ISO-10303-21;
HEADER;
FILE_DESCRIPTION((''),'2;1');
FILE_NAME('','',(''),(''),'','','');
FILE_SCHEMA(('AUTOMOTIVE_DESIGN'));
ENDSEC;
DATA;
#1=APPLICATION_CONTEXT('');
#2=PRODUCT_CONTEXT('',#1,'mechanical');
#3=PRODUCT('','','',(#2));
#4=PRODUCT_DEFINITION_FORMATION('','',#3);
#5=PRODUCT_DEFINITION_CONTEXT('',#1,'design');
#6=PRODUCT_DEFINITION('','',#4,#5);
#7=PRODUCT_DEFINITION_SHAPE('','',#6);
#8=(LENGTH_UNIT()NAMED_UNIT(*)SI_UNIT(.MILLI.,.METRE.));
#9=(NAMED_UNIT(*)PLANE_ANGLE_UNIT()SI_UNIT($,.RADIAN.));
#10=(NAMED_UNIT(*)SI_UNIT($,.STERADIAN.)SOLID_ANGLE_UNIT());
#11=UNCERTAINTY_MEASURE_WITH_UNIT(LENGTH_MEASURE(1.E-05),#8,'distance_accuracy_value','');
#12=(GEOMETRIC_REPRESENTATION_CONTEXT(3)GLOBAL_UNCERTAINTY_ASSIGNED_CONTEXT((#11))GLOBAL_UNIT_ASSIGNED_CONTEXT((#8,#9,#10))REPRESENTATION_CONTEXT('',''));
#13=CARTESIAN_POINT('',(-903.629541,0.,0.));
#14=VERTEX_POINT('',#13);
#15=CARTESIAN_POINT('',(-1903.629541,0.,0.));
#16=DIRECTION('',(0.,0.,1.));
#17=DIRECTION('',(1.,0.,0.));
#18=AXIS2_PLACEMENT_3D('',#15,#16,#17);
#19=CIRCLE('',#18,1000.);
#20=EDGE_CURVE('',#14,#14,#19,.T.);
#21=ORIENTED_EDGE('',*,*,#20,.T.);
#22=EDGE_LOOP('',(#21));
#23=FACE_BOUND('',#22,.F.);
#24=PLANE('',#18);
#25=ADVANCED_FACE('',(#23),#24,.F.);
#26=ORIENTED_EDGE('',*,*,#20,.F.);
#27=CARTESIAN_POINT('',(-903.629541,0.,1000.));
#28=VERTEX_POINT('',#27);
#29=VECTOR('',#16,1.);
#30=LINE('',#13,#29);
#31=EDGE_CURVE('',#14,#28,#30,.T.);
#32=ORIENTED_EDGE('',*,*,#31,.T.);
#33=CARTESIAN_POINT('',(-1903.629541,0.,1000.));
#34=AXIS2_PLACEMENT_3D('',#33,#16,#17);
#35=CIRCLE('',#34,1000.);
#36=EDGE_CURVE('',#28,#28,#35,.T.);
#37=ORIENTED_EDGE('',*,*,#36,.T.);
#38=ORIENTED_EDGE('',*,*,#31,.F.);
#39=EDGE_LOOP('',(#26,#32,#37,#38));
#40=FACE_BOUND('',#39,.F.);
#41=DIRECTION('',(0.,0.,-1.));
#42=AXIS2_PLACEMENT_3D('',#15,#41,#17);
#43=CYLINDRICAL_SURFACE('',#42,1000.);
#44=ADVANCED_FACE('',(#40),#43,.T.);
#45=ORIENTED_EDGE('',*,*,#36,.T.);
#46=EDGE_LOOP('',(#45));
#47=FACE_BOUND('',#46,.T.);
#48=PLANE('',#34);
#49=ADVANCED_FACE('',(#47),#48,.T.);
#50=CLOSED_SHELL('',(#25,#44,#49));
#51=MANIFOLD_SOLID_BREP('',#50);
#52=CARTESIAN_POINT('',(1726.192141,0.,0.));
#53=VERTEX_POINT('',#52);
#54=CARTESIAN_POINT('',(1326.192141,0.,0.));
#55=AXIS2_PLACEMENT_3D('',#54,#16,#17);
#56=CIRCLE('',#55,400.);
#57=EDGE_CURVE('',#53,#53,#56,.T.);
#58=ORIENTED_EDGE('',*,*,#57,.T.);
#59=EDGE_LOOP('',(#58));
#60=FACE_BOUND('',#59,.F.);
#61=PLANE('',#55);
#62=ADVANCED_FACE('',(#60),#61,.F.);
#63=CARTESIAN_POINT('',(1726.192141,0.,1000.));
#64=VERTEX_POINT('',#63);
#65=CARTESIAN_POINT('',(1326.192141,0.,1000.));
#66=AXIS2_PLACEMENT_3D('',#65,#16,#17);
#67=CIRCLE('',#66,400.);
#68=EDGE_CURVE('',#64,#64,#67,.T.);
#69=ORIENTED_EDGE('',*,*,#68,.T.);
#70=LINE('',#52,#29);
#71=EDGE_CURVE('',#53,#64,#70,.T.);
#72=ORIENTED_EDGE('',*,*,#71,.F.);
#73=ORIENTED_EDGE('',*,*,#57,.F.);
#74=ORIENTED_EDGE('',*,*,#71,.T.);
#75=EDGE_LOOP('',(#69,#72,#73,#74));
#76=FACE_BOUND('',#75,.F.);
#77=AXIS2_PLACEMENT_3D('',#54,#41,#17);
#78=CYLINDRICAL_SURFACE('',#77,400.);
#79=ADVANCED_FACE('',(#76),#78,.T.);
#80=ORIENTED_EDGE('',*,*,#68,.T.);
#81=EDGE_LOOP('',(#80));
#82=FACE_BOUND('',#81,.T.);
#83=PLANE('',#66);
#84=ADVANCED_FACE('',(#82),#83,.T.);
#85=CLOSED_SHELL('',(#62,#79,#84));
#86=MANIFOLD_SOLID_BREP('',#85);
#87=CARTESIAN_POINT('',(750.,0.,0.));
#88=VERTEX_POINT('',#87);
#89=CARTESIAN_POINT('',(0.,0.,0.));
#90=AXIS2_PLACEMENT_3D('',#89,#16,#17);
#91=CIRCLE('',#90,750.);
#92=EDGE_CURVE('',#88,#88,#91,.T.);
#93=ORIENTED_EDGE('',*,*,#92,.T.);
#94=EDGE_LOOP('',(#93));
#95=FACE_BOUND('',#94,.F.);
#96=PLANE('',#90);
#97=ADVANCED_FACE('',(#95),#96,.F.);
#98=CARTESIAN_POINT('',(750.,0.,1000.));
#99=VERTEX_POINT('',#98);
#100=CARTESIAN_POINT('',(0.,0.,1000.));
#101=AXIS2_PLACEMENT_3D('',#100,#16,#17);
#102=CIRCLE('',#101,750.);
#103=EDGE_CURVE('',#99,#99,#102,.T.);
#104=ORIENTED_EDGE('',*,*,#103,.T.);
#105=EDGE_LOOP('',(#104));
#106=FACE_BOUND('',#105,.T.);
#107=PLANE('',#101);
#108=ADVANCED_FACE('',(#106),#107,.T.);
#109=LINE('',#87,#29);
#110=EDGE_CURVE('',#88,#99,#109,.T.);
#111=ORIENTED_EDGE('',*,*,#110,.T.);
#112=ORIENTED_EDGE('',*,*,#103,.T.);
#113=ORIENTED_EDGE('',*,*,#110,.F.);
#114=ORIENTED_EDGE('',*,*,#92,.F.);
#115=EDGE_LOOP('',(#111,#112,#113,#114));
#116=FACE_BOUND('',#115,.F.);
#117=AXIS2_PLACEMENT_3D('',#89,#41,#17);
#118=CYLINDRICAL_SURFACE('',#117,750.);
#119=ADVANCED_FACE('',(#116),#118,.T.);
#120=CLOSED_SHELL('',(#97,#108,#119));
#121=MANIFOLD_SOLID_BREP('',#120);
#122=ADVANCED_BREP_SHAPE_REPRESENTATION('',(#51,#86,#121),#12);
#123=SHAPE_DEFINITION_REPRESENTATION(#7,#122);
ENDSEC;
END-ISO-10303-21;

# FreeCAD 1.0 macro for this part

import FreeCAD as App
import Part
import Sketcher
from FreeCAD import Vector
Q = App.Units.Quantity

doc = App.newDocument("Part")
body = doc.addObject("PartDesign::Body", "Body")
body.AllowCompound = True

# Sketch on XY plane
sketch1 = doc.addObject("Sketcher::SketchObject", "Sketch")
body.addObject(sketch1)
sketch1.AttachmentSupport = (doc.XY_Plane, [""])
sketch1.MapMode = "FlatFace"
sketch1.addGeometry([
    Part.Circle(Vector(-1904, 0, 0), Vector(0, 0, 1), 1000),
    Part.Circle(Vector(0, 0, 0), Vector(0, 0, 1), 750),
    Part.Circle(Vector(1326, 0, 0), Vector(0, 0, 1), 400),
], False)
sketch1.addConstraint([
    Sketcher.Constraint("Coincident", 1, 3, -1, 1),
    Sketcher.Constraint("PointOnObject", 0, 3, -1),
    Sketcher.Constraint("PointOnObject", 2, 3, -1),
    Sketcher.Constraint("Diameter", 0, Q("2000 mm")),
    Sketcher.Constraint("Diameter", 1, Q("1500 mm")),
    Sketcher.Constraint("Diameter", 2, Q("800 mm")),
    Sketcher.Constraint("DistanceX", 0, 3, -1, 1, Q("1903.629541 mm")),
    Sketcher.Constraint("DistanceX", -1, 1, 2, 3, Q("1326.192141 mm")),
])
pad1 = doc.addObject("PartDesign::Pad", "Pad")
body.addObject(pad1)
pad1.Profile = sketch1
pad1.Length = 1000

doc.recompute()
